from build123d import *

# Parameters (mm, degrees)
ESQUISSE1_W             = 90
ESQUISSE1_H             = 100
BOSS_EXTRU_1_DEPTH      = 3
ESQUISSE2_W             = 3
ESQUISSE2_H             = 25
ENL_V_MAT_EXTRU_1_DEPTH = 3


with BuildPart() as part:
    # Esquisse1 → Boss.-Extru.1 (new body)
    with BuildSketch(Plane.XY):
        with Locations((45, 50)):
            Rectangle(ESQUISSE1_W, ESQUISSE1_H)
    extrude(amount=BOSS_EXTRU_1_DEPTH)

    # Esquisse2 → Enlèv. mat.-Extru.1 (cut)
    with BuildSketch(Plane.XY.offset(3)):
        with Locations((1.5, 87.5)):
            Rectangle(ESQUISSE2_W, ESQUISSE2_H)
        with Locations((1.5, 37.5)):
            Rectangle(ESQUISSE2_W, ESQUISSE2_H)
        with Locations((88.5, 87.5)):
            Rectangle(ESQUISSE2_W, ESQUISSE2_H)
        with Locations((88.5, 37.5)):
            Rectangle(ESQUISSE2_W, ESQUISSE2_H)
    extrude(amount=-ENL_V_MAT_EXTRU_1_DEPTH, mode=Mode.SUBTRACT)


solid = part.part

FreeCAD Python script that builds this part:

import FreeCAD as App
import Part
import Sketcher
from FreeCAD import Vector
Q = App.Units.Quantity

doc = App.newDocument("Part")
body = doc.addObject("PartDesign::Body", "Body")

# Sketch on XY plane
sketch1 = doc.addObject("Sketcher::SketchObject", "Sketch")
body.addObject(sketch1)
sketch1.AttachmentSupport = (doc.XY_Plane, [""])
sketch1.MapMode = "FlatFace"
sketch1.addGeometry(Part.LineSegment(Vector(0, 100, 0), Vector(0, 0, 0)), False)
sketch1.addGeometry(Part.LineSegment(Vector(0, 0, 0), Vector(90, 0, 0)), False)
sketch1.addGeometry(Part.LineSegment(Vector(90, 0, 0), Vector(90, 100, 0)), False)
sketch1.addGeometry(Part.LineSegment(Vector(90, 100, 0), Vector(0, 100, 0)), False)
sketch1.addConstraint(Sketcher.Constraint("Coincident", 0, 2, 1, 1))
sketch1.addConstraint(Sketcher.Constraint("Coincident", 1, 2, 2, 1))
sketch1.addConstraint(Sketcher.Constraint("Coincident", 2, 2, 3, 1))
sketch1.addConstraint(Sketcher.Constraint("Coincident", 3, 2, 0, 1))
sketch1.addConstraint(Sketcher.Constraint("Vertical", 0))
sketch1.addConstraint(Sketcher.Constraint("Horizontal", 1))
sketch1.addConstraint(Sketcher.Constraint("Vertical", 2))
sketch1.addConstraint(Sketcher.Constraint("Horizontal", 3))
sketch1.addConstraint(Sketcher.Constraint("Coincident", 0, 2, -1, 1))
sketch1.addConstraint(Sketcher.Constraint("DistanceX", 1, 1, 1, 2, Q("90 mm")))
sketch1.addConstraint(Sketcher.Constraint("DistanceY", 0, 2, 0, 1, Q("100 mm")))
pad1 = doc.addObject("PartDesign::Pad", "Pad")
body.addObject(pad1)
pad1.Profile = sketch1
pad1.Length = 3

# Sketch on XY plane
sketch2 = doc.addObject("Sketcher::SketchObject", "Sketch001")
body.addObject(sketch2)
sketch2.AttachmentSupport = (doc.XY_Plane, [""])
sketch2.MapMode = "FlatFace"
sketch2.AttachmentOffset = App.Placement(Vector(0, 0, 3), App.Rotation())
sketch2.addGeometry(Part.LineSegment(Vector(0, 100, 0), Vector(0, 75, 0)), False)
sketch2.addGeometry(Part.LineSegment(Vector(0, 75, 0), Vector(3, 75, 0)), False)
sketch2.addGeometry(Part.LineSegment(Vector(3, 75, 0), Vector(3, 100, 0)), False)
sketch2.addGeometry(Part.LineSegment(Vector(3, 100, 0), Vector(0, 100, 0)), False)
sketch2.addGeometry(Part.LineSegment(Vector(0, 50, 0), Vector(0, 25, 0)), False)
sketch2.addGeometry(Part.LineSegment(Vector(0, 25, 0), Vector(3, 25, 0)), False)
sketch2.addGeometry(Part.LineSegment(Vector(3, 25, 0), Vector(3, 50, 0)), False)
sketch2.addGeometry(Part.LineSegment(Vector(3, 50, 0), Vector(0, 50, 0)), False)
sketch2.addGeometry(Part.LineSegment(Vector(87, 100, 0), Vector(87, 75, 0)), False)
sketch2.addGeometry(Part.LineSegment(Vector(87, 75, 0), Vector(90, 75, 0)), False)
sketch2.addGeometry(Part.LineSegment(Vector(90, 75, 0), Vector(90, 100, 0)), False)
sketch2.addGeometry(Part.LineSegment(Vector(90, 100, 0), Vector(87, 100, 0)), False)
sketch2.addGeometry(Part.LineSegment(Vector(87, 50, 0), Vector(87, 25, 0)), False)
sketch2.addGeometry(Part.LineSegment(Vector(87, 25, 0), Vector(90, 25, 0)), False)
sketch2.addGeometry(Part.LineSegment(Vector(90, 25, 0), Vector(90, 50, 0)), False)
sketch2.addGeometry(Part.LineSegment(Vector(90, 50, 0), Vector(87, 50, 0)), False)
sketch2.addConstraint(Sketcher.Constraint("Coincident", 0, 2, 1, 1))
sketch2.addConstraint(Sketcher.Constraint("Coincident", 1, 2, 2, 1))
sketch2.addConstraint(Sketcher.Constraint("Coincident", 2, 2, 3, 1))
sketch2.addConstraint(Sketcher.Constraint("Coincident", 3, 2, 0, 1))
sketch2.addConstraint(Sketcher.Constraint("Coincident", 4, 2, 5, 1))
sketch2.addConstraint(Sketcher.Constraint("Coincident", 5, 2, 6, 1))
sketch2.addConstraint(Sketcher.Constraint("Coincident", 6, 2, 7, 1))
sketch2.addConstraint(Sketcher.Constraint("Coincident", 7, 2, 4, 1))
sketch2.addConstraint(Sketcher.Constraint("Coincident", 8, 2, 9, 1))
sketch2.addConstraint(Sketcher.Constraint("Coincident", 9, 2, 10, 1))
sketch2.addConstraint(Sketcher.Constraint("Coincident", 10, 2, 11, 1))
sketch2.addConstraint(Sketcher.Constraint("Coincident", 11, 2, 8, 1))
sketch2.addConstraint(Sketcher.Constraint("Coincident", 12, 2, 13, 1))
sketch2.addConstraint(Sketcher.Constraint("Coincident", 13, 2, 14, 1))
sketch2.addConstraint(Sketcher.Constraint("Coincident", 14, 2, 15, 1))
sketch2.addConstraint(Sketcher.Constraint("Coincident", 15, 2, 12, 1))
sketch2.addConstraint(Sketcher.Constraint("Vertical", 0))
sketch2.addConstraint(Sketcher.Constraint("Horizontal", 1))
sketch2.addConstraint(Sketcher.Constraint("Vertical", 2))
sketch2.addConstraint(Sketcher.Constraint("Horizontal", 3))
sketch2.addConstraint(Sketcher.Constraint("Vertical", 4))
sketch2.addConstraint(Sketcher.Constraint("Horizontal", 5))
sketch2.addConstraint(Sketcher.Constraint("Vertical", 6))
sketch2.addConstraint(Sketcher.Constraint("Horizontal", 7))
sketch2.addConstraint(Sketcher.Constraint("Vertical", 8))
sketch2.addConstraint(Sketcher.Constraint("Horizontal", 9))
sketch2.addConstraint(Sketcher.Constraint("Vertical", 10))
sketch2.addConstraint(Sketcher.Constraint("Horizontal", 11))
sketch2.addConstraint(Sketcher.Constraint("Vertical", 12))
sketch2.addConstraint(Sketcher.Constraint("Horizontal", 13))
sketch2.addConstraint(Sketcher.Constraint("Vertical", 14))
sketch2.addConstraint(Sketcher.Constraint("Horizontal", 15))
sketch2.addConstraint(Sketcher.Constraint("PointOnObject", 0, 2, -2))
sketch2.addConstraint(Sketcher.Constraint("PointOnObject", 4, 2, -2))
sketch2.addConstraint(Sketcher.Constraint("Horizontal", 1, 2, 8, 2))
sketch2.addConstraint(Sketcher.Constraint("Horizontal", 3, 2, 10, 2))
sketch2.addConstraint(Sketcher.Constraint("Horizontal", 5, 2, 12, 2))
sketch2.addConstraint(Sketcher.Constraint("Horizontal", 7, 2, 14, 2))
sketch2.addConstraint(Sketcher.Constraint("Vertical", 2, 2, 5, 2))
sketch2.addConstraint(Sketcher.Constraint("Vertical", 11, 2, 12, 2))
sketch2.addConstraint(Sketcher.Constraint("Vertical", 10, 2, 13, 2))
sketch2.addConstraint(Sketcher.Constraint("Equal", 7, 9))
sketch2.addConstraint(Sketcher.Constraint("Equal", 2, 4))
sketch2.addConstraint(Sketcher.Constraint("DistanceX", 1, 1, 1, 2, Q("3 mm")))
sketch2.addConstraint(Sketcher.Constraint("DistanceY", 0, 2, 0, 1, Q("25 mm")))
sketch2.addConstraint(Sketcher.Constraint("DistanceY", -1, 1, 0, 2, Q("75 mm")))
sketch2.addConstraint(Sketcher.Constraint("DistanceY", -1, 1, 4, 2, Q("25 mm")))
sketch2.addConstraint(Sketcher.Constraint("DistanceX", -1, 1, 8, 2, Q("87 mm")))
pocket1 = doc.addObject("PartDesign::Pocket", "Pocket")
body.addObject(pocket1)
pocket1.Profile = sketch2
pocket1.Length = 3

doc.recompute()
